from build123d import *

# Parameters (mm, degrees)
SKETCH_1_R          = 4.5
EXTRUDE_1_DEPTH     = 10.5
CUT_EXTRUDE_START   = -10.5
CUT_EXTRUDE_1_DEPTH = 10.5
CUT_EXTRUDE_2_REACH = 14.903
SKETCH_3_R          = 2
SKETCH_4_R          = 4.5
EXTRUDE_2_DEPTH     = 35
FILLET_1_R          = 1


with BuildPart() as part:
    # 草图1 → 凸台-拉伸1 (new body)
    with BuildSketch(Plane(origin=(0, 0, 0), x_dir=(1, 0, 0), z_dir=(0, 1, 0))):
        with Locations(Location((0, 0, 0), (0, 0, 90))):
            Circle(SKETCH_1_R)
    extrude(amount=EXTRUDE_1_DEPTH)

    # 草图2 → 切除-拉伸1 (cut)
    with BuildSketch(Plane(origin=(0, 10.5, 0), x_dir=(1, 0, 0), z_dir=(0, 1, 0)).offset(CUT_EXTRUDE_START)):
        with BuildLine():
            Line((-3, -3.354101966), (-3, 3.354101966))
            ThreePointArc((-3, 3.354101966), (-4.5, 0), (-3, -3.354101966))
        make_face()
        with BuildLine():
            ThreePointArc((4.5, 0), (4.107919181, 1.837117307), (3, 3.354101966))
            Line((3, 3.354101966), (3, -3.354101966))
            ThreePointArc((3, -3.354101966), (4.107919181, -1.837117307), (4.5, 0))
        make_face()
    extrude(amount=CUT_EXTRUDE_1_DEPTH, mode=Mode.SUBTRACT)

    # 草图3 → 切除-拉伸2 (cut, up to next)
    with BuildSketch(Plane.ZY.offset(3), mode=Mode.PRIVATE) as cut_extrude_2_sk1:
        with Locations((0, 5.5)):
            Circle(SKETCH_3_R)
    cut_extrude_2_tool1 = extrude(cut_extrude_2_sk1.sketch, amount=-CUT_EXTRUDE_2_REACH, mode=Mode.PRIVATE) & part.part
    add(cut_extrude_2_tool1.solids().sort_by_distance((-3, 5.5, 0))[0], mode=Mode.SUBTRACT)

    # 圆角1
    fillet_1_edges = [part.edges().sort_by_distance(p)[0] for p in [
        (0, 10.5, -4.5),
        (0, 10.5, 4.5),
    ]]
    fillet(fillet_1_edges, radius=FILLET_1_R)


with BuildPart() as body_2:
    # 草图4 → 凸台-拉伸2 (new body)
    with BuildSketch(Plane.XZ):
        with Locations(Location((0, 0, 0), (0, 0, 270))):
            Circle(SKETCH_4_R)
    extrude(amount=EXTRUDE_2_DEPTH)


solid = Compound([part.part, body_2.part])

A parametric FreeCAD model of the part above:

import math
import FreeCAD as App
import Part
import Sketcher


def edges_at(feature, points):
    """Names of the edges that pass closest to the given points."""
    edges = feature.Shape.Edges
    near = lambda p: min(range(len(edges)), key=lambda i: edges[i].distToShape(Part.Vertex(*p))[0])
    return sorted({f"Edge{near(p) + 1}" for p in points})

doc = App.newDocument("Part")
params = doc.addObject("Spreadsheet::Sheet", "Params")
for row, (alias, value) in enumerate([
    ("sketch1_diameter", "9 mm"),
    ("pad1_length", "10.5 mm"),
    ("sketch2_radius", "4.5 mm"),
    ("pocket1_length", "10.5 mm"),
    ("sketch3_diameter", "4 mm"),
    ("fillet_radius", "1 mm"),
    ("sketch4_diameter", "9 mm"),
    ("pad2_length", "35 mm"),
], start=1):
    params.set(f"A{row}", alias)
    params.set(f"B{row}", "=" + value)
    params.setAlias(f"B{row}", alias)

body = doc.addObject("PartDesign::Body", "Body")

# Sketch on XZ plane
sketch1 = body.newObject("Sketcher::SketchObject", "Sketch")
sketch1.AttachmentSupport = (doc.getObject("XZ_Plane"), [""])
sketch1.MapMode = "FlatFace"
sketch1.addGeometry(Part.Circle(App.Vector(0, 0, 0), App.Vector(0, 0, 1), 4.5), False)
sketch1.addConstraint([
    Sketcher.Constraint("Coincident", 0, 3, -1, 1),
    Sketcher.Constraint("Diameter", 0, 9.0),
])
sketch1.setExpression("Constraints[1]", "Params.sketch1_diameter")
pad1 = body.newObject("PartDesign::Pad", "Pad")
pad1.Profile = sketch1
pad1.setExpression("Length", "Params.pad1_length")
pad1.Reversed = True

# Sketch on XZ plane
sketch2 = body.newObject("Sketcher::SketchObject", "Sketch001")
sketch2.AttachmentSupport = (doc.getObject("XZ_Plane"), [""])
sketch2.MapMode = "FlatFace"
sketch2.addGeometry([
    Part.LineSegment(App.Vector(-3, 3.354102, 0), App.Vector(-3, -3.354102, 0)),  # 0
    Part.ArcOfCircle(Part.Circle(App.Vector(0, 0, 0), App.Vector(0, 0, 1), 4.5), math.radians(131.810315), math.radians(228.189685)),  # 1
    Part.ArcOfCircle(Part.Circle(App.Vector(0, 0, 0), App.Vector(0, 0, 1), 4.5), math.radians(-48.189685), math.radians(0)),  # 2
    Part.LineSegment(App.Vector(3, -3.354102, 0), App.Vector(3, 3.354102, 0)),  # 3
    Part.ArcOfCircle(Part.Circle(App.Vector(0, 0, 0), App.Vector(0, 0, 1), 4.5), math.radians(0), math.radians(48.189685)),  # 4
], False)
sketch2.addConstraint([
    Sketcher.Constraint("Coincident", 0, 1, 1, 1),
    Sketcher.Constraint("Coincident", 1, 2, 0, 2),
    Sketcher.Constraint("Coincident", 2, 1, 3, 1),
    Sketcher.Constraint("Coincident", 3, 2, 4, 2),
    Sketcher.Constraint("Tangent", 4, 1, 2, 2),
    Sketcher.Constraint("Vertical", 0),
    Sketcher.Constraint("Vertical", 3),
    Sketcher.Constraint("Coincident", 1, 3, -1, 1),
    Sketcher.Constraint("Coincident", 2, 3, -1, 1),
    Sketcher.Constraint("Equal", 1, 2),
    Sketcher.Constraint("Equal", 2, 4),
    Sketcher.Constraint("PointOnObject", 4, 1, -1),
    Sketcher.Constraint("Horizontal", 1, 2, 2, 1),
    Sketcher.Constraint("Radius", 1, 4.5),
    Sketcher.Constraint("DistanceX", 0, 1, -1, 1, 3.0),
])
sketch2.setExpression("Constraints[13]", "Params.sketch2_radius")
pocket1 = body.newObject("PartDesign::Pocket", "Pocket")
pocket1.Profile = sketch2
pocket1.setExpression("Length", "Params.pocket1_length")

# Sketch on YZ plane
sketch3 = body.newObject("Sketcher::SketchObject", "Sketch002")
sketch3.AttachmentSupport = (doc.getObject("YZ_Plane"), [""])
sketch3.MapMode = "FlatFace"
sketch3.AttachmentOffset = App.Placement(App.Vector(0, 0, -3), App.Rotation())
sketch3.addGeometry(Part.Circle(App.Vector(5.5, 0, 0), App.Vector(0, 0, 1), 2), False)
sketch3.addConstraint([
    Sketcher.Constraint("PointOnObject", 0, 3, -1),
    Sketcher.Constraint("Diameter", 0, 4.0),
    Sketcher.Constraint("DistanceX", -1, 1, 0, 3, 5.5),
])
sketch3.setExpression("Constraints[1]", "Params.sketch3_diameter")
pocket2 = body.newObject("PartDesign::Pocket", "Pocket001")
pocket2.Profile = sketch3
pocket2.Type = "UpToFirst"
pocket2.Reversed = True
doc.recompute()

fillet = body.newObject("PartDesign::Fillet", "Fillet")
fillet.Base = (pocket2, edges_at(pocket2, [(0, 10.5, -4.5), (0, 10.5, 4.5)]))
fillet.setExpression("Radius", "Params.fillet_radius")
body2 = doc.addObject("PartDesign::Body", "Body001")

# Sketch on XZ plane
sketch4 = body2.newObject("Sketcher::SketchObject", "Sketch003")
sketch4.AttachmentSupport = (doc.getObject("XZ_Plane001"), [""])
sketch4.MapMode = "FlatFace"
sketch4.addGeometry(Part.Circle(App.Vector(0, 0, 0), App.Vector(0, 0, 1), 4.5), False)
sketch4.addConstraint([
    Sketcher.Constraint("Coincident", 0, 3, -1, 1),
    Sketcher.Constraint("Diameter", 0, 9.0),
])
sketch4.setExpression("Constraints[1]", "Params.sketch4_diameter")
pad2 = body2.newObject("PartDesign::Pad", "Pad001")
pad2.Profile = sketch4
pad2.setExpression("Length", "Params.pad2_length")

doc.recompute()
